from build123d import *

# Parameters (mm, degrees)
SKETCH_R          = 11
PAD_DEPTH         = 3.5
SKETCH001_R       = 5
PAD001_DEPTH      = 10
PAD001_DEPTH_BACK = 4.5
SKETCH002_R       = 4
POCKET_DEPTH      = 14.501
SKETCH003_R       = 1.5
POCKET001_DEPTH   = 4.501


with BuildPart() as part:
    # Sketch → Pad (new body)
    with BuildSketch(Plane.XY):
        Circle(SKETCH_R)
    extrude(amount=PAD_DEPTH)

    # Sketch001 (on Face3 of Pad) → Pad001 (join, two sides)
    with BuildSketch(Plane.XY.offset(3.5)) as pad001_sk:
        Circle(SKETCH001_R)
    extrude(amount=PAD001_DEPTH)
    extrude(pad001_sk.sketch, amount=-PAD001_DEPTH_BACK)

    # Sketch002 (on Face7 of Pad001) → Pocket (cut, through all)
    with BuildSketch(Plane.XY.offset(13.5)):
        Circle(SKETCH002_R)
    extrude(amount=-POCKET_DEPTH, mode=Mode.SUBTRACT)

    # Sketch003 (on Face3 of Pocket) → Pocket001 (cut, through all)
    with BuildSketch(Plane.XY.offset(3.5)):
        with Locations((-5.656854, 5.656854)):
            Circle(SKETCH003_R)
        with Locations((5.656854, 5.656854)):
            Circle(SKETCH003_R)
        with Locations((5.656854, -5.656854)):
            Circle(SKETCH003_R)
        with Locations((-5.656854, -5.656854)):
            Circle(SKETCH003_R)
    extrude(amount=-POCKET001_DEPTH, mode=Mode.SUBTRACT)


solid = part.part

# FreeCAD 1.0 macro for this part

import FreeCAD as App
import Part
import Sketcher

doc = App.newDocument("Part")
body = doc.addObject("PartDesign::Body", "Body")

# Sketch on XY plane
sketch1 = body.newObject("Sketcher::SketchObject", "Sketch")
sketch1.AttachmentSupport = (doc.getObject("XY_Plane"), [""])
sketch1.MapMode = "FlatFace"
sketch1.addGeometry(Part.Circle(App.Vector(0, 0, 0), App.Vector(0, 0, 1), 11), False)
sketch1.addConstraint(Sketcher.Constraint("Coincident", 0, 3, -1, 1))
sketch1.addConstraint(Sketcher.Constraint("Diameter", 0, 22.0))
pad1 = body.newObject("PartDesign::Pad", "Pad")
pad1.Profile = sketch1
pad1.Length = 3.5

# Sketch on XY plane
sketch2 = body.newObject("Sketcher::SketchObject", "Sketch001")
sketch2.AttachmentSupport = (doc.getObject("XY_Plane"), [""])
sketch2.MapMode = "FlatFace"
sketch2.AttachmentOffset = App.Placement(App.Vector(0, 0, 3.5), App.Rotation())
sketch2.addGeometry(Part.Circle(App.Vector(0, 0, 0), App.Vector(0, 0, 1), 5), False)
sketch2.addConstraint(Sketcher.Constraint("Coincident", 0, 3, -1, 1))
sketch2.addConstraint(Sketcher.Constraint("Diameter", 0, 10.0))
pad2 = body.newObject("PartDesign::Pad", "Pad001")
pad2.Profile = sketch2
pad2.Type = "TwoLengths"
pad2.Length = 10
pad2.Length2 = 4.5

# Sketch on XY plane
sketch3 = body.newObject("Sketcher::SketchObject", "Sketch002")
sketch3.AttachmentSupport = (doc.getObject("XY_Plane"), [""])
sketch3.MapMode = "FlatFace"
sketch3.AttachmentOffset = App.Placement(App.Vector(0, 0, 13.5), App.Rotation())
sketch3.addGeometry(Part.Circle(App.Vector(0, 0, 0), App.Vector(0, 0, 1), 4), False)
sketch3.addConstraint(Sketcher.Constraint("Coincident", 0, 3, -1, 1))
sketch3.addConstraint(Sketcher.Constraint("Diameter", 0, 8.0))
pocket1 = body.newObject("PartDesign::Pocket", "Pocket")
pocket1.Profile = sketch3
pocket1.Type = "ThroughAll"

# Sketch on XY plane
sketch4 = body.newObject("Sketcher::SketchObject", "Sketch003")
sketch4.AttachmentSupport = (doc.getObject("XY_Plane"), [""])
sketch4.MapMode = "FlatFace"
sketch4.AttachmentOffset = App.Placement(App.Vector(0, 0, 3.5), App.Rotation())
sketch4.addGeometry(Part.Circle(App.Vector(-5.656854, 5.656854, 0), App.Vector(0, 0, 1), 1.5), False)
sketch4.addGeometry(Part.Circle(App.Vector(5.656854, 5.656854, 0), App.Vector(0, 0, 1), 1.5), False)
sketch4.addGeometry(Part.Circle(App.Vector(5.656854, -5.656854, 0), App.Vector(0, 0, 1), 1.5), False)
sketch4.addGeometry(Part.Circle(App.Vector(-5.656854, -5.656854, 0), App.Vector(0, 0, 1), 1.5), False)
sketch4.addConstraint(Sketcher.Constraint("Equal", 0, 1))
sketch4.addConstraint(Sketcher.Constraint("Equal", 1, 2))
sketch4.addConstraint(Sketcher.Constraint("Equal", 2, 3))
sketch4.addConstraint(Sketcher.Constraint("Symmetric", 0, 3, 2, 3, -1, 1))
sketch4.addConstraint(Sketcher.Constraint("Symmetric", 1, 3, 3, 3, -1, 1))
sketch4.addConstraint(Sketcher.Constraint("Symmetric", 0, 3, 1, 3, -2))
sketch4.addConstraint(Sketcher.Constraint("Diameter", 0, 3.0))
sketch4.addConstraint(Sketcher.Constraint("DistanceX", 0, 3, -1, 1, 5.656854))
sketch4.addConstraint(Sketcher.Constraint("DistanceY", -1, 1, 0, 3, 5.656854))
pocket2 = body.newObject("PartDesign::Pocket", "Pocket001")
pocket2.Profile = sketch4
pocket2.Type = "ThroughAll"

doc.recompute()
